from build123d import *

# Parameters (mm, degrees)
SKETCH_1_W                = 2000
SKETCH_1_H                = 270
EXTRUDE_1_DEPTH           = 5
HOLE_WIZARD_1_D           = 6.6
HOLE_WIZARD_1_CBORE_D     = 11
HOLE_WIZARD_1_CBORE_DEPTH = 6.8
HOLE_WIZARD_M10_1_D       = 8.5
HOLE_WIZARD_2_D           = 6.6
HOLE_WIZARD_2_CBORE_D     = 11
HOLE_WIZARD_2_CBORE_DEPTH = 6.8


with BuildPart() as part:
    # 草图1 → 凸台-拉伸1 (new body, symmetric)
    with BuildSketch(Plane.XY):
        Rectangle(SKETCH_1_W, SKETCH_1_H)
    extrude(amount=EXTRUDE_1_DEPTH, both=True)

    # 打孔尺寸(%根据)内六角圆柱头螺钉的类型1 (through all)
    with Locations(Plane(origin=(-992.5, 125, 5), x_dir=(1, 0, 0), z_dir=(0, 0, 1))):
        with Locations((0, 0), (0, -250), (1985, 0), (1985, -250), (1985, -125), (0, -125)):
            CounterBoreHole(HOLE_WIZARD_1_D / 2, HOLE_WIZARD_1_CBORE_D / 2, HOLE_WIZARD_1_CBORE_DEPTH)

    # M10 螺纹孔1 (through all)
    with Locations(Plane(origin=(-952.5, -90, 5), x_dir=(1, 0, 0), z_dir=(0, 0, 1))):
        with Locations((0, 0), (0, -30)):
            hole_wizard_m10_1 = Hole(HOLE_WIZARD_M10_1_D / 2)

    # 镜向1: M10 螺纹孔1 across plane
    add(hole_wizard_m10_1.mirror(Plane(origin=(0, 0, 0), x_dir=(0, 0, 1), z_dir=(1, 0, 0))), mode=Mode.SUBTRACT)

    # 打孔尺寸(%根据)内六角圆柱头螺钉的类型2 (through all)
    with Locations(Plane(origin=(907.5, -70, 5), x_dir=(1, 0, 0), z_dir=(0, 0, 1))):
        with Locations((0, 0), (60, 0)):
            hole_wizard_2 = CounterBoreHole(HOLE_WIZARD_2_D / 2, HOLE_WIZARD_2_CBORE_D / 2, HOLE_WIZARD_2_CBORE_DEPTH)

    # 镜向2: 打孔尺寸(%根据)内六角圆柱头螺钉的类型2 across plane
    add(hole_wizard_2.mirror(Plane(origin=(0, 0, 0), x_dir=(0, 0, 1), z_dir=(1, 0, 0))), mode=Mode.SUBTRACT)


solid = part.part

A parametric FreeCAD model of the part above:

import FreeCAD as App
import Part
import Sketcher
from FreeCAD import Vector
Q = App.Units.Quantity

doc = App.newDocument("Part")
body = doc.addObject("PartDesign::Body", "Body")

# Sketch on XY plane
sketch1 = body.newObject("Sketcher::SketchObject", "Sketch")
sketch1.AttachmentSupport = (doc.getObject("XY_Plane"), [""])
sketch1.MapMode = "FlatFace"
sketch1.addGeometry([
    Part.LineSegment(Vector(-1000, 135, 0), Vector(-1000, -135, 0)),
    Part.LineSegment(Vector(-1000, -135, 0), Vector(1000, -135, 0)),
    Part.LineSegment(Vector(1000, -135, 0), Vector(1000, 135, 0)),
    Part.LineSegment(Vector(1000, 135, 0), Vector(-1000, 135, 0)),
], False)
sketch1.addConstraint([
    Sketcher.Constraint("Coincident", 0, 2, 1, 1),
    Sketcher.Constraint("Coincident", 1, 2, 2, 1),
    Sketcher.Constraint("Coincident", 2, 2, 3, 1),
    Sketcher.Constraint("Coincident", 3, 2, 0, 1),
    Sketcher.Constraint("Vertical", 0),
    Sketcher.Constraint("Horizontal", 1),
    Sketcher.Constraint("Vertical", 2),
    Sketcher.Constraint("Horizontal", 3),
    Sketcher.Constraint("Symmetric", 0, 2, 2, 2, -1, 1),
    Sketcher.Constraint("DistanceX", 1, 1, 1, 2, Q("2000 mm")),
    Sketcher.Constraint("DistanceY", 0, 2, 0, 1, Q("270 mm")),
])
pad1 = body.newObject("PartDesign::Pad", "Pad")
pad1.Profile = sketch1
pad1.Length = 10
pad1.Midplane = True

# Sketch on XY plane
sketch2 = body.newObject("Sketcher::SketchObject", "Sketch001")
sketch2.AttachmentSupport = (doc.getObject("XY_Plane"), [""])
sketch2.MapMode = "FlatFace"
sketch2.AttachmentOffset = App.Placement(Vector(0, 0, 5), App.Rotation())
sketch2.addGeometry([
    Part.Circle(Vector(-992.5, 125, 0), Vector(0, 0, 1), 3.3),  # 0
    Part.Circle(Vector(-992.5, -125, 0), Vector(0, 0, 1), 3.3),  # 1
    Part.Circle(Vector(992.5, 125, 0), Vector(0, 0, 1), 3.3),  # 2
    Part.Circle(Vector(992.5, -125, 0), Vector(0, 0, 1), 3.3),  # 3
    Part.Circle(Vector(992.5, 0, 0), Vector(0, 0, 1), 3.3),  # 4
    Part.Circle(Vector(-992.5, 0, 0), Vector(0, 0, 1), 3.3),  # 5
], False)
sketch2.addConstraint([
    Sketcher.Constraint("Equal", 0, 1),
    Sketcher.Constraint("Equal", 1, 2),
    Sketcher.Constraint("Equal", 2, 3),
    Sketcher.Constraint("Equal", 3, 4),
    Sketcher.Constraint("Equal", 4, 5),
    Sketcher.Constraint("Symmetric", 1, 3, 2, 3, -1, 1),
    Sketcher.Constraint("Symmetric", 0, 3, 3, 3, -1, 1),
    Sketcher.Constraint("Symmetric", 4, 3, 5, 3, -1, 1),
    Sketcher.Constraint("Symmetric", 0, 3, 2, 3, -2),
    Sketcher.Constraint("PointOnObject", 4, 3, -1),
    Sketcher.Constraint("Vertical", 3, 3, 4, 3),
    Sketcher.Constraint("Diameter", 0, Q("6.6 mm")),
    Sketcher.Constraint("DistanceY", -1, 1, 0, 3, Q("125 mm")),
    Sketcher.Constraint("DistanceX", 0, 3, 2, 3, Q("1985 mm")),
])
doc.recompute()
hole = body.newObject("PartDesign::Hole", "Hole")
hole.Profile = sketch2
hole.ThreadType = "None"
hole.Diameter = 6.6
hole.DepthType = "ThroughAll"
hole.HoleCutType = "Counterbore"
hole.HoleCutDiameter = 11
hole.HoleCutDepth = 6.8

# Sketch on XY plane
sketch3 = body.newObject("Sketcher::SketchObject", "Sketch002")
sketch3.AttachmentSupport = (doc.getObject("XY_Plane"), [""])
sketch3.MapMode = "FlatFace"
sketch3.AttachmentOffset = App.Placement(Vector(0, 0, 5), App.Rotation())
sketch3.addGeometry([
    Part.Circle(Vector(-952.5, -90, 0), Vector(0, 0, 1), 4.2),
    Part.Circle(Vector(-952.5, -120, 0), Vector(0, 0, 1), 4.2),
], False)
sketch3.addConstraint([
    Sketcher.Constraint("Equal", 0, 1),
    Sketcher.Constraint("Vertical", 0, 3, 1, 3),
    Sketcher.Constraint("Diameter", 0, Q("8.5 mm")),
    Sketcher.Constraint("DistanceY", 0, 3, -1, 1, Q("90 mm")),
    Sketcher.Constraint("DistanceY", 1, 3, -1, 1, Q("120 mm")),
    Sketcher.Constraint("DistanceX", 0, 3, -1, 1, Q("952.5 mm")),
])
doc.recompute()
hole2 = body.newObject("PartDesign::Hole", "Hole001")
hole2.Profile = sketch3
hole2.ThreadType = "None"
hole2.Diameter = 8.5
hole2.DepthType = "ThroughAll"
doc.recompute()

mirrored = body.newObject("PartDesign::Mirrored", "Mirrored")
mirrored.Originals = [hole2]
mirrored.MirrorPlane = (doc.getObject("YZ_Plane"), [""])
body.Tip = mirrored

# Sketch on XY plane
sketch4 = body.newObject("Sketcher::SketchObject", "Sketch003")
sketch4.AttachmentSupport = (doc.getObject("XY_Plane"), [""])
sketch4.MapMode = "FlatFace"
sketch4.AttachmentOffset = App.Placement(Vector(0, 0, 5), App.Rotation())
sketch4.addGeometry([
    Part.Circle(Vector(907.5, -70, 0), Vector(0, 0, 1), 3.3),
    Part.Circle(Vector(967.5, -70, 0), Vector(0, 0, 1), 3.3),
], False)
sketch4.addConstraint([
    Sketcher.Constraint("Equal", 0, 1),
    Sketcher.Constraint("Horizontal", 0, 3, 1, 3),
    Sketcher.Constraint("Diameter", 0, Q("6.6 mm")),
    Sketcher.Constraint("DistanceY", 0, 3, -1, 1, Q("70 mm")),
    Sketcher.Constraint("DistanceX", 0, 3, 1, 3, Q("60 mm")),
    Sketcher.Constraint("DistanceX", -1, 1, 0, 3, Q("907.5 mm")),
])
doc.recompute()
hole3 = body.newObject("PartDesign::Hole", "Hole002")
hole3.Profile = sketch4
hole3.ThreadType = "None"
hole3.Diameter = 6.6
hole3.DepthType = "ThroughAll"
hole3.HoleCutType = "Counterbore"
hole3.HoleCutDiameter = 11
hole3.HoleCutDepth = 6.8
doc.recompute()

mirrored2 = body.newObject("PartDesign::Mirrored", "Mirrored001")
mirrored2.Originals = [hole3]
mirrored2.MirrorPlane = (doc.getObject("YZ_Plane"), [""])
body.Tip = mirrored2

doc.recompute()
